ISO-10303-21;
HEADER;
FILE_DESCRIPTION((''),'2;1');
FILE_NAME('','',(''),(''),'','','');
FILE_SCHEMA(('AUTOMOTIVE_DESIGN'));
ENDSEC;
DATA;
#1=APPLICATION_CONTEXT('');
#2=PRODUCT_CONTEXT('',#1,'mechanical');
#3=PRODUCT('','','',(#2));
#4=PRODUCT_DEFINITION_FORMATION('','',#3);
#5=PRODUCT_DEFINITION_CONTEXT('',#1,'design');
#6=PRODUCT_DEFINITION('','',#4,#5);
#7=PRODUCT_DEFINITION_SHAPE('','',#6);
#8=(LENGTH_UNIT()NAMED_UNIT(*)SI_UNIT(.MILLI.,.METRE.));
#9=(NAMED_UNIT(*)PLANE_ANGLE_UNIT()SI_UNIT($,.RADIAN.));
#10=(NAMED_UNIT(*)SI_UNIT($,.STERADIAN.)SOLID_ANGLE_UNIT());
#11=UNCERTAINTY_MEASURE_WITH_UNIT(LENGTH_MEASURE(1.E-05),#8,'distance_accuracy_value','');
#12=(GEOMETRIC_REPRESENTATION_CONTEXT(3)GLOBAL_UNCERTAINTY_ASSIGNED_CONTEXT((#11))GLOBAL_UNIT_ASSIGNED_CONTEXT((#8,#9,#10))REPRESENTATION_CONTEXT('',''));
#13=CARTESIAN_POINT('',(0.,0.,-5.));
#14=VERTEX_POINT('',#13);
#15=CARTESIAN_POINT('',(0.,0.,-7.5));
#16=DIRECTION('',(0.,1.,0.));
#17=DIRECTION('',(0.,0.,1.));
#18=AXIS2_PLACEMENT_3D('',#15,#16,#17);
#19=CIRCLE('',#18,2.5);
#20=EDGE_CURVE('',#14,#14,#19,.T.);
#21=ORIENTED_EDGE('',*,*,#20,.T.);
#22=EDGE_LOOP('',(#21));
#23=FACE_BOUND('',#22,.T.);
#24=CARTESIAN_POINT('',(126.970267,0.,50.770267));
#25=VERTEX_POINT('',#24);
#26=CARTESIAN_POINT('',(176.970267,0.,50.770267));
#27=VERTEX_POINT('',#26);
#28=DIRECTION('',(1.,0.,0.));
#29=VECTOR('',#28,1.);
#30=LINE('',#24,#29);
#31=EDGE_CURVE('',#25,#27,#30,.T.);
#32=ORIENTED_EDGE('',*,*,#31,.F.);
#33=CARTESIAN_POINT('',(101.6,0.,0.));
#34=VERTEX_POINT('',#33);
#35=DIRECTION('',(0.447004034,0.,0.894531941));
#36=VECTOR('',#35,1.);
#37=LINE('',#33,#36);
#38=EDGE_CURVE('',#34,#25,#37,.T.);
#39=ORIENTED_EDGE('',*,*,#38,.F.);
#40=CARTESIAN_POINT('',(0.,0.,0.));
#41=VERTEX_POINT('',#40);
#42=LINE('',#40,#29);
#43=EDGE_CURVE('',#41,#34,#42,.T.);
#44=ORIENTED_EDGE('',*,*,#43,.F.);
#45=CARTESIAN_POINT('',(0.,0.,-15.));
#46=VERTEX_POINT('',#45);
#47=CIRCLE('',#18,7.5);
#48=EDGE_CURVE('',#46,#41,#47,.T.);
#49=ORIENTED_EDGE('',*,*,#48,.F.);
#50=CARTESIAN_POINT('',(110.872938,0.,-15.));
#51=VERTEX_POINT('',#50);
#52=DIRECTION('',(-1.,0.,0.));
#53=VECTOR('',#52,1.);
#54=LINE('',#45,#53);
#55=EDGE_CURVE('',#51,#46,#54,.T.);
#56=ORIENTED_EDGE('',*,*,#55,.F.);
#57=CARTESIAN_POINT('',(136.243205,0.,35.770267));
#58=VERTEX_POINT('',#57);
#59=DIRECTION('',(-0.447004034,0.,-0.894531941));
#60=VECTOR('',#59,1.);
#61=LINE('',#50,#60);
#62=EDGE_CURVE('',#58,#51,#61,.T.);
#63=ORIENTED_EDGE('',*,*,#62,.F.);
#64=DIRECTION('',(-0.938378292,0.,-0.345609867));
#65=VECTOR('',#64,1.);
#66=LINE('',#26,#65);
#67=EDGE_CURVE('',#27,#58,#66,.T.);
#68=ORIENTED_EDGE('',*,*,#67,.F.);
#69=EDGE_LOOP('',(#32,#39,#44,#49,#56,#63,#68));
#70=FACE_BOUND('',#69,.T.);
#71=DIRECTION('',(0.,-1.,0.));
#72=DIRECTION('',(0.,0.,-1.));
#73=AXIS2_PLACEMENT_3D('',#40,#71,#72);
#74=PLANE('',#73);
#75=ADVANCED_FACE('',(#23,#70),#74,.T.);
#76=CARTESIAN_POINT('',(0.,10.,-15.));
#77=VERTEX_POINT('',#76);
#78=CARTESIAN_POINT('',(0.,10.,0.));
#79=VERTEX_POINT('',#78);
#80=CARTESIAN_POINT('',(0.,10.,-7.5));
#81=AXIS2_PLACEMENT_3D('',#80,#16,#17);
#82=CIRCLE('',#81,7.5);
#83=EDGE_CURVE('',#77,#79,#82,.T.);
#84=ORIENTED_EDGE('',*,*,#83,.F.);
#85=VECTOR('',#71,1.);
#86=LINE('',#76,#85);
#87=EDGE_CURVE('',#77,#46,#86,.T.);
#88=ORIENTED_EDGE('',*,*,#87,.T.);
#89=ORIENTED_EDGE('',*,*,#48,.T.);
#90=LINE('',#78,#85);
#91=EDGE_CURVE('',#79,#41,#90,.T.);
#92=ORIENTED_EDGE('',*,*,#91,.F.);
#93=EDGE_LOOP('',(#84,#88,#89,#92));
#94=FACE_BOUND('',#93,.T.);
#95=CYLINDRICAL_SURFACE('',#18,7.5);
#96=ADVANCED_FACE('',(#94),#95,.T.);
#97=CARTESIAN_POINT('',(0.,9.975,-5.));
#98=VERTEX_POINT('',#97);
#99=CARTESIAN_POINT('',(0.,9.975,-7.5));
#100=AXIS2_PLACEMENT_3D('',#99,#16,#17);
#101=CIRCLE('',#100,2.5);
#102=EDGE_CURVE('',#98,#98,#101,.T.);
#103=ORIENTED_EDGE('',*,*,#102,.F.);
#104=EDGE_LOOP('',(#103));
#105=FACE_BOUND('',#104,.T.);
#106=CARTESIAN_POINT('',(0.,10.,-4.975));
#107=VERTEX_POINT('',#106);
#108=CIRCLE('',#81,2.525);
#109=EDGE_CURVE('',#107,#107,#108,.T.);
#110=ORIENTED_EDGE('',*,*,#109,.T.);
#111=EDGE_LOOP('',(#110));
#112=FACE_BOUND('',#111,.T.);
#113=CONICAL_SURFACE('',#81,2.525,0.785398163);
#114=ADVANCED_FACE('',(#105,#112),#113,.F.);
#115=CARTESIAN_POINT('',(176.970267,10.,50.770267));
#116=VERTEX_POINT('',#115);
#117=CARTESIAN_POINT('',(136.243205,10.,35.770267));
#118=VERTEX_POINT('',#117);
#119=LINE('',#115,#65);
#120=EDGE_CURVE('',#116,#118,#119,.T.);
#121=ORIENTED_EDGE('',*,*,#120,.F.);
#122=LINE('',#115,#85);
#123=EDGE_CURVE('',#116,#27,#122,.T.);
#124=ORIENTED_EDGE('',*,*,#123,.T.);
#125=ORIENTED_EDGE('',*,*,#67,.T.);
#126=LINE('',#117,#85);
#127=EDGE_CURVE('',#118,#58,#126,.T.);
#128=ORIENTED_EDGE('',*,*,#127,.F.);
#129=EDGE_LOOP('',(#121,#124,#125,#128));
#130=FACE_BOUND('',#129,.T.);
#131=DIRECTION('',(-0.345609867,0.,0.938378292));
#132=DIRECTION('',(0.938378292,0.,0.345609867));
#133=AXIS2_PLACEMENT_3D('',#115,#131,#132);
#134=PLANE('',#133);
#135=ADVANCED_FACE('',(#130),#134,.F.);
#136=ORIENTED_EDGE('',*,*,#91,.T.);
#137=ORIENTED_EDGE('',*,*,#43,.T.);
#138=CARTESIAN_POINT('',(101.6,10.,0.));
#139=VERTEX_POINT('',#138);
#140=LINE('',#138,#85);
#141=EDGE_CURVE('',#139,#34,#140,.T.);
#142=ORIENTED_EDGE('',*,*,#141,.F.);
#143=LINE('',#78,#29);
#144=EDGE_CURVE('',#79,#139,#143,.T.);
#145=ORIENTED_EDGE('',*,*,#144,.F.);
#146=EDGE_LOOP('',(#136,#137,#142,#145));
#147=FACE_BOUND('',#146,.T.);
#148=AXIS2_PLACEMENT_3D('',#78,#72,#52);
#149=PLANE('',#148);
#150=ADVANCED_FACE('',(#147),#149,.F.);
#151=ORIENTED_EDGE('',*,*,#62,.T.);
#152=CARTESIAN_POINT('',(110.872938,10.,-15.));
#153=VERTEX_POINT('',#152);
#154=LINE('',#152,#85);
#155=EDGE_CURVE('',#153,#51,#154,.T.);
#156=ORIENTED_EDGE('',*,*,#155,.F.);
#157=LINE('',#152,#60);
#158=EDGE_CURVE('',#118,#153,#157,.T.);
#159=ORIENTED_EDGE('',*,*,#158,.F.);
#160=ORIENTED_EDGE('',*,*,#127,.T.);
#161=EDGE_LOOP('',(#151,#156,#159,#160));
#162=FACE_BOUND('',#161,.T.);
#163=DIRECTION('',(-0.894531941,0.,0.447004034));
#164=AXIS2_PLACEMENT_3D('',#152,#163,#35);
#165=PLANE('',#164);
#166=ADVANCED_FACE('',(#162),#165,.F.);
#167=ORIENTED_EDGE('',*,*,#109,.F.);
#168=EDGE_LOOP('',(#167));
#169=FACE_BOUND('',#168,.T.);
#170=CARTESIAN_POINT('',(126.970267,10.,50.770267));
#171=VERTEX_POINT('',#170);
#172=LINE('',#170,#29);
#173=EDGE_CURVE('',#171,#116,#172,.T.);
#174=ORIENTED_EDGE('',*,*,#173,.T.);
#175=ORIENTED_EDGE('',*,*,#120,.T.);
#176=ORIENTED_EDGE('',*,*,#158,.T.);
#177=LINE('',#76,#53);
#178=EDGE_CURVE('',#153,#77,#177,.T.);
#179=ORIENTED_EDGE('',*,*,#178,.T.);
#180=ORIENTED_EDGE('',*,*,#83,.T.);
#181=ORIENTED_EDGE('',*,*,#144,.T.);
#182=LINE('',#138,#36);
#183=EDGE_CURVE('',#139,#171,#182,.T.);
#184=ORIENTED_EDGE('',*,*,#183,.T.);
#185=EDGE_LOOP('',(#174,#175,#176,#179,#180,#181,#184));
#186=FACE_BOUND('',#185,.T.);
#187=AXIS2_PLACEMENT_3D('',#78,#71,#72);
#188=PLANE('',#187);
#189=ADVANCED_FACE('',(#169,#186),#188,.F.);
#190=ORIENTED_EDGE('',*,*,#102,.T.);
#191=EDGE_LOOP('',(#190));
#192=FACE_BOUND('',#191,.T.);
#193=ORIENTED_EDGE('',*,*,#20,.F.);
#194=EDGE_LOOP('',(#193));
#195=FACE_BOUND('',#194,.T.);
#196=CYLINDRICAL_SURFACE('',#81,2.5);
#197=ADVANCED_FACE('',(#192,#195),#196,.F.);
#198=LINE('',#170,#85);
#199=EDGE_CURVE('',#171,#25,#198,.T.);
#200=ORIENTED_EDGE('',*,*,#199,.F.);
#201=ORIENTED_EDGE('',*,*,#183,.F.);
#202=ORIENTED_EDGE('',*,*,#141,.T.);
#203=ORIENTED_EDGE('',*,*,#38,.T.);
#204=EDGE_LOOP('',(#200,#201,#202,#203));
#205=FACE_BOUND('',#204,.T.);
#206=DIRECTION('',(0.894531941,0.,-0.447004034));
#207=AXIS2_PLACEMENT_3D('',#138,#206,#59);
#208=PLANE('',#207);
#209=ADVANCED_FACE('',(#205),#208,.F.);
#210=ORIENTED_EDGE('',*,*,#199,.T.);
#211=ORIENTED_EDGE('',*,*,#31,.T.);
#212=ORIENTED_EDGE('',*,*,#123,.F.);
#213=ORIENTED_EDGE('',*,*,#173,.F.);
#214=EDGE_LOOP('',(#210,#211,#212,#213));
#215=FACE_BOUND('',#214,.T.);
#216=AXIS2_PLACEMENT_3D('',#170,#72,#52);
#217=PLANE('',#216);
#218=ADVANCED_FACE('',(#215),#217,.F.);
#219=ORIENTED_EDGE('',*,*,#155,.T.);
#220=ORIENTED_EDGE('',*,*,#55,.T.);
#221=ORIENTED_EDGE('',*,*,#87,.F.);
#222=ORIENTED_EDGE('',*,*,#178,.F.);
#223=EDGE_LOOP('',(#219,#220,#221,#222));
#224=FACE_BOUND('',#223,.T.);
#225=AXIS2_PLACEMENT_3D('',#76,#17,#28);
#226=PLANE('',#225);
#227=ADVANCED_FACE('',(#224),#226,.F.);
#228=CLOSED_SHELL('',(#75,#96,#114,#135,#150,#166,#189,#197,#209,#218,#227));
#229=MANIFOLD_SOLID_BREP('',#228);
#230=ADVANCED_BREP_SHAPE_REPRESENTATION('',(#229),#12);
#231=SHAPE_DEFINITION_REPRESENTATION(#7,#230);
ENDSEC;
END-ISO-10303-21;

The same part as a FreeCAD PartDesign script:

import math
import FreeCAD as App
import Part
import Sketcher


def add_polygon(sketch, points):
    """Adds a closed chain of lines whose ends are joined by coincident constraints."""
    first, n = sketch.GeometryCount, len(points)
    for a, b in zip(points, points[1:] + points[:1]):
        sketch.addGeometry(Part.LineSegment(App.Vector(*a, 0), App.Vector(*b, 0)), False)
    for i in range(n):
        sketch.addConstraint(Sketcher.Constraint("Coincident", first + i, 2, first + (i + 1) % n, 1))

doc = App.newDocument("Part")
body = doc.addObject("PartDesign::Body", "Body")

# Sketch on XZ plane
sketch1 = body.newObject("Sketcher::SketchObject", "Sketch")
sketch1.AttachmentSupport = (doc.getObject("XZ_Plane"), [""])
sketch1.MapMode = "FlatFace"
add_polygon(sketch1, [(0, 0), (102, 0), (127, 51), (177, 51), (136, 36), (111, -15), (0, -15)])  # lines 0-6
sketch1.addConstraint(Sketcher.Constraint("Horizontal", 0))
sketch1.addConstraint(Sketcher.Constraint("Horizontal", 2))
sketch1.addConstraint(Sketcher.Constraint("Horizontal", 5))
sketch1.addConstraint(Sketcher.Constraint("Vertical", 6))
sketch1.addConstraint(Sketcher.Constraint("Coincident", 6, 2, -1, 1))
sketch1.addConstraint(Sketcher.Constraint("Parallel", 1, 4))
sketch1.addConstraint(Sketcher.Constraint("Equal", 1, 4))
sketch1.addConstraint(Sketcher.Constraint("DistanceX", 2, 1, 2, 2, 50.0))
sketch1.addConstraint(Sketcher.Constraint("DistanceY", 6, 1, 6, 2, 15.0))
sketch1.addConstraint(Sketcher.Constraint("DistanceX", 0, 1, 0, 2, 101.6))
sketch1.addConstraint(Sketcher.Constraint("DistanceX", 5, 2, 5, 1, 110.872938))
sketch1.addConstraint(Sketcher.Constraint("DistanceX", 4, 2, 1, 2, 16.097329))
sketch1.addConstraint(Sketcher.Constraint("Distance", 1, 56.756237))
pad1 = body.newObject("PartDesign::Pad", "Pad")
pad1.Profile = sketch1
pad1.Length = 10
pad1.Reversed = True

# Sketch on XZ plane
sketch2 = body.newObject("Sketcher::SketchObject", "Sketch001")
sketch2.AttachmentSupport = (doc.getObject("XZ_Plane"), [""])
sketch2.MapMode = "FlatFace"
sketch2.AttachmentOffset = App.Placement(App.Vector(0, 0, -10), App.Rotation())
sketch2.addGeometry(Part.LineSegment(App.Vector(0, 0, 0), App.Vector(0, -15, 0)), False)
sketch2.addGeometry(Part.ArcOfCircle(Part.Circle(App.Vector(0, -8, 0), App.Vector(0, 0, 1), 8), math.radians(90), math.radians(270)), False)
sketch2.addConstraint(Sketcher.Constraint("Coincident", 0, 1, 1, 1))
sketch2.addConstraint(Sketcher.Constraint("Coincident", 1, 2, 0, 2))
sketch2.addConstraint(Sketcher.Constraint("Vertical", 0))
sketch2.addConstraint(Sketcher.Constraint("Coincident", 0, 1, -1, 1))
sketch2.addConstraint(Sketcher.Constraint("PointOnObject", 1, 3, -2))
sketch2.addConstraint(Sketcher.Constraint("Radius", 1, 7.5))
pad2 = body.newObject("PartDesign::Pad", "Pad001")
pad2.Profile = sketch2
pad2.Length = 10

# Sketch on XZ plane
sketch3 = body.newObject("Sketcher::SketchObject", "Sketch002")
sketch3.AttachmentSupport = (doc.getObject("XZ_Plane"), [""])
sketch3.MapMode = "FlatFace"
sketch3.AttachmentOffset = App.Placement(App.Vector(0, 0, -10), App.Rotation())
sketch3.addGeometry(Part.Circle(App.Vector(0, -7.5, 0), App.Vector(0, 0, 1), 2.5), False)
sketch3.addConstraint(Sketcher.Constraint("PointOnObject", 0, 3, -2))
sketch3.addConstraint(Sketcher.Constraint("Diameter", 0, 5.0))
sketch3.addConstraint(Sketcher.Constraint("DistanceY", 0, 3, -1, 1, 7.5))
doc.recompute()
hole = body.newObject("PartDesign::Hole", "Hole")
hole.Profile = sketch3
hole.ThreadType = "None"
hole.Diameter = 5
hole.DepthType = "ThroughAll"
hole.HoleCutType = "Countersink"
hole.HoleCutDiameter = 5.05
hole.HoleCutCountersinkAngle = 90
hole.Reversed = True

doc.recompute()
